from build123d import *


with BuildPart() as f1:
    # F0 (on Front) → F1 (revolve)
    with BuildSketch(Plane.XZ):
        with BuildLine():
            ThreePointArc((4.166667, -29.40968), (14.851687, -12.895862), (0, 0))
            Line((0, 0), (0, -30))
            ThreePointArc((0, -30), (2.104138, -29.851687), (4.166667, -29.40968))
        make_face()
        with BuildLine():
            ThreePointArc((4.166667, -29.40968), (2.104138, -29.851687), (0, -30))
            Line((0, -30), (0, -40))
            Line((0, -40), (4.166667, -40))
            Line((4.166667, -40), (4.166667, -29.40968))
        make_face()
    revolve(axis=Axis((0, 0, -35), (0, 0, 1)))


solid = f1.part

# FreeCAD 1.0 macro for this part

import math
import FreeCAD as App
import Part
import Sketcher

V = App.Vector

doc = App.newDocument("Part")
body = doc.addObject("PartDesign::Body", "Body")

# Sketch on XZ plane
sketch1 = body.newObject("Sketcher::SketchObject", "Sketch")
sketch1.AttachmentSupport = (doc.getObject("XZ_Plane"), [""])
sketch1.MapMode = "FlatFace"
sketch1.addGeometry([
    Part.ArcOfCircle(Part.Circle(V(0, -15, 0), V(0, 0, 1), 15), math.radians(-74), math.radians(90)),
    Part.LineSegment(V(0, 0, 0), V(0, -40, 0)),
    Part.LineSegment(V(0, -40, 0), V(4.2, -40, 0)),
    Part.LineSegment(V(4.2, -40, 0), V(4.2, -29.4, 0)),
], False)
sketch1.addConstraint([
    Sketcher.Constraint("Coincident", 0, 2, 1, 1),
    Sketcher.Constraint("Coincident", 1, 2, 2, 1),
    Sketcher.Constraint("Coincident", 2, 2, 3, 1),
    Sketcher.Constraint("Coincident", 3, 2, 0, 1),
    Sketcher.Constraint("Vertical", 1),
    Sketcher.Constraint("Horizontal", 2),
    Sketcher.Constraint("Vertical", 3),
    Sketcher.Constraint("Coincident", 0, 2, -1, 1),
    Sketcher.Constraint("PointOnObject", 0, 3, -2),
    Sketcher.Constraint("Radius", 0, 15.0),
    Sketcher.Constraint("DistanceY", 1, 2, 1, 1, 40.0),
    Sketcher.Constraint("DistanceY", 3, 1, 3, 2, 10.59032),
])
revolution = body.newObject("PartDesign::Revolution", "Revolution")
revolution.Profile = sketch1
revolution.ReferenceAxis = (sketch1, ["V_Axis"])
revolution.Angle = 360

doc.recompute()
